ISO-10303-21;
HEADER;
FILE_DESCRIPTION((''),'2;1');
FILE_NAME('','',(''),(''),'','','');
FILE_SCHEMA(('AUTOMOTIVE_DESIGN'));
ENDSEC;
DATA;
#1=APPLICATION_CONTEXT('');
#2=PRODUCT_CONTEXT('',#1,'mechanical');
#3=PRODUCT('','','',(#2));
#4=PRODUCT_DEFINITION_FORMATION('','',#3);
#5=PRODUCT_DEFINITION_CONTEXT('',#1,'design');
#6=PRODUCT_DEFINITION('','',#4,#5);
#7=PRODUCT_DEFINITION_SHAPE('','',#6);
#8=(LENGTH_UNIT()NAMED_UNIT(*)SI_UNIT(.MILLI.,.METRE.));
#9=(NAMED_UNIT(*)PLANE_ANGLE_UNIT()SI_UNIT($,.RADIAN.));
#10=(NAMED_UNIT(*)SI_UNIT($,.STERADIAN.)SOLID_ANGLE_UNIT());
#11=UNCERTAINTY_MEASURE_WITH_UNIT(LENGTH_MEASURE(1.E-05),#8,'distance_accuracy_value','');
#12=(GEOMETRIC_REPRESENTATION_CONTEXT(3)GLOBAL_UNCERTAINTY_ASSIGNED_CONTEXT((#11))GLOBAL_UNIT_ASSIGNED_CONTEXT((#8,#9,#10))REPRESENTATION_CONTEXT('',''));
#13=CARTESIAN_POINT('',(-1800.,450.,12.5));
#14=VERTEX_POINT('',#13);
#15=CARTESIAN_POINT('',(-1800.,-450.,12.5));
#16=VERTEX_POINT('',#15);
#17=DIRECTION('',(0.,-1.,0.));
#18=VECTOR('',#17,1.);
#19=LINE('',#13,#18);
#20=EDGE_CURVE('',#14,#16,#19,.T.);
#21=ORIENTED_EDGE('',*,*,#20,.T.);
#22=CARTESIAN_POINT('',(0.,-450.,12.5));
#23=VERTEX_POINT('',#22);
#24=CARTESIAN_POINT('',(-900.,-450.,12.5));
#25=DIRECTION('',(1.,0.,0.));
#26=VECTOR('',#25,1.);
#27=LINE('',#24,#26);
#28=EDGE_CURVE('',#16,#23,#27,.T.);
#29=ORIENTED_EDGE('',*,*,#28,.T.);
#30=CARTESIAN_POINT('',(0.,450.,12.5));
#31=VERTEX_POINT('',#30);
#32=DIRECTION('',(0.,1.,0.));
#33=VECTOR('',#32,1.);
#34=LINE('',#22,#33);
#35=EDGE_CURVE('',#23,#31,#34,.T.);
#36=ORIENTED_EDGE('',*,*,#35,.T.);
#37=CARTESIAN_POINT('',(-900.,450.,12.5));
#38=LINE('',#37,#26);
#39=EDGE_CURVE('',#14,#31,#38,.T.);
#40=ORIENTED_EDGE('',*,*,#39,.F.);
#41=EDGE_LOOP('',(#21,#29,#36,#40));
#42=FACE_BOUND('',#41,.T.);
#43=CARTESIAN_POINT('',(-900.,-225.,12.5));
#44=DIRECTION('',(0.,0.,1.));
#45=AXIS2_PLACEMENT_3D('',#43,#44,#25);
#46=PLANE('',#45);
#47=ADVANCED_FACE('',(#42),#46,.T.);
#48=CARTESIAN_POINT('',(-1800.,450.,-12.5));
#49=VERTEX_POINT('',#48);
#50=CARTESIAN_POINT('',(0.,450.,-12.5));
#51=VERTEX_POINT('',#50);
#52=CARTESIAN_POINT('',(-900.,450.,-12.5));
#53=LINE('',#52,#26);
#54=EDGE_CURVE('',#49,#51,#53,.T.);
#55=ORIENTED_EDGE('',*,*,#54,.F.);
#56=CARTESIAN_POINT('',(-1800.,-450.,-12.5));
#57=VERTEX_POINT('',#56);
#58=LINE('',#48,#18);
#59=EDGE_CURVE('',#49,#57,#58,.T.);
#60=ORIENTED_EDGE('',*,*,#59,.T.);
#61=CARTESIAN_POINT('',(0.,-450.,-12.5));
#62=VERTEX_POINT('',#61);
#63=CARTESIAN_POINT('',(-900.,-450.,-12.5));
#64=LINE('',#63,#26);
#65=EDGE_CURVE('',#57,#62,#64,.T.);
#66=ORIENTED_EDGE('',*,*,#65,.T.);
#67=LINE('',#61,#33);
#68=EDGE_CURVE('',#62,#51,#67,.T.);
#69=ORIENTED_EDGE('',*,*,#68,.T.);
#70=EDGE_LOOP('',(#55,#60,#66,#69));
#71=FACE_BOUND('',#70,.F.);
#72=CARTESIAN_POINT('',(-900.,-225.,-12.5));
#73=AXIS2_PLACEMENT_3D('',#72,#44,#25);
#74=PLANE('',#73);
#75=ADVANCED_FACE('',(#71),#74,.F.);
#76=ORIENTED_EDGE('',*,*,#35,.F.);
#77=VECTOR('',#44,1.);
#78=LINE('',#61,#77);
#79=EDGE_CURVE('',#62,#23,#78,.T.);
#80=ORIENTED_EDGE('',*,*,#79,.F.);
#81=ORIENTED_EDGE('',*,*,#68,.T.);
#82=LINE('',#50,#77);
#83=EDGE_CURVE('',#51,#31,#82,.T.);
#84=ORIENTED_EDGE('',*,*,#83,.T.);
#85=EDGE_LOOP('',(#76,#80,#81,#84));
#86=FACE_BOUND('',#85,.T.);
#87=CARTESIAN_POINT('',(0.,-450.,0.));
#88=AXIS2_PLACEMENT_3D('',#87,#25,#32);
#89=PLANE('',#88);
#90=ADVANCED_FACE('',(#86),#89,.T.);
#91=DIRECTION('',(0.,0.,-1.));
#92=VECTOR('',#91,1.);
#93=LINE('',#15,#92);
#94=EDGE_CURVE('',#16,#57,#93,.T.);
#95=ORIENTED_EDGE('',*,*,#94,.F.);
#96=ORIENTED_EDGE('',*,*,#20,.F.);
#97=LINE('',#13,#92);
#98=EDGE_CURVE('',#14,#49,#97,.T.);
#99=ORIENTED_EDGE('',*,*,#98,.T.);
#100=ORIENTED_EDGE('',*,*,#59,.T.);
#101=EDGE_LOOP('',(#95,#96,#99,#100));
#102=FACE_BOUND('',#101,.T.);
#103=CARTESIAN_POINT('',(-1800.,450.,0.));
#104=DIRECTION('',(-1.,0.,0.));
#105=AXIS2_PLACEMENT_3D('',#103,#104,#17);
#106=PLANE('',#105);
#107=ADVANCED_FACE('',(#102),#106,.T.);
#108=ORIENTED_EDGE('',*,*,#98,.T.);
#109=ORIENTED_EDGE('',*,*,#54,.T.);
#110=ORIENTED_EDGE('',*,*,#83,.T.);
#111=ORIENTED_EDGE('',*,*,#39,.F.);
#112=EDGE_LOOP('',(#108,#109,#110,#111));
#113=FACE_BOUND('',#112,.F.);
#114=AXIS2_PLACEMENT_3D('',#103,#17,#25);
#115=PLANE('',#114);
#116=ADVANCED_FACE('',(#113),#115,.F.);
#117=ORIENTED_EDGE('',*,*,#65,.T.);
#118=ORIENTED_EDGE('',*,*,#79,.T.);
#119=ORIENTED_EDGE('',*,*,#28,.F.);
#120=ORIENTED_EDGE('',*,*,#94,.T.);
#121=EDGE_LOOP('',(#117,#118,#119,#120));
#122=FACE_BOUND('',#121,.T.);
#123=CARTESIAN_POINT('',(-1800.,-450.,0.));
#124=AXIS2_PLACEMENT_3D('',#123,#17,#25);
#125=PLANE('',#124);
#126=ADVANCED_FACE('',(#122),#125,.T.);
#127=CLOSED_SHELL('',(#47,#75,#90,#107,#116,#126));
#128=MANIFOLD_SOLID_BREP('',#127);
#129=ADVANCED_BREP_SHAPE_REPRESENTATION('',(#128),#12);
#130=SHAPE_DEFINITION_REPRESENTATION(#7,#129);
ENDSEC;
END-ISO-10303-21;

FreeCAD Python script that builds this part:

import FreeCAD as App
import Part
import Sketcher


def add_polygon(sketch, points):
    """Adds a closed chain of lines whose ends are joined by coincident constraints."""
    first, n = sketch.GeometryCount, len(points)
    for a, b in zip(points, points[1:] + points[:1]):
        sketch.addGeometry(Part.LineSegment(App.Vector(*a, 0), App.Vector(*b, 0)), False)
    for i in range(n):
        sketch.addConstraint(Sketcher.Constraint("Coincident", first + i, 2, first + (i + 1) % n, 1))

doc = App.newDocument("Part")
body = doc.addObject("PartDesign::Body", "Body")

# Sketch on XY plane
sketch1 = body.newObject("Sketcher::SketchObject", "Sketch")
sketch1.AttachmentSupport = (doc.getObject("XY_Plane"), [""])
sketch1.MapMode = "FlatFace"
add_polygon(sketch1, [(-1800, -450), (0, -450), (0, 450), (-1800, 450)])  # lines 0-3
sketch1.addConstraint([
    Sketcher.Constraint("Horizontal", 0),
    Sketcher.Constraint("Vertical", 1),
    Sketcher.Constraint("Horizontal", 2),
    Sketcher.Constraint("Vertical", 3),
    Sketcher.Constraint("Symmetric", 0, 2, 1, 2, -1, 1),
    Sketcher.Constraint("DistanceX", 0, 1, 0, 2, 1800.0),
    Sketcher.Constraint("DistanceY", 1, 1, 1, 2, 900.0),
])
pad1 = body.newObject("PartDesign::Pad", "Pad")
pad1.Profile = sketch1
pad1.Length = 25
pad1.Midplane = True

doc.recompute()
